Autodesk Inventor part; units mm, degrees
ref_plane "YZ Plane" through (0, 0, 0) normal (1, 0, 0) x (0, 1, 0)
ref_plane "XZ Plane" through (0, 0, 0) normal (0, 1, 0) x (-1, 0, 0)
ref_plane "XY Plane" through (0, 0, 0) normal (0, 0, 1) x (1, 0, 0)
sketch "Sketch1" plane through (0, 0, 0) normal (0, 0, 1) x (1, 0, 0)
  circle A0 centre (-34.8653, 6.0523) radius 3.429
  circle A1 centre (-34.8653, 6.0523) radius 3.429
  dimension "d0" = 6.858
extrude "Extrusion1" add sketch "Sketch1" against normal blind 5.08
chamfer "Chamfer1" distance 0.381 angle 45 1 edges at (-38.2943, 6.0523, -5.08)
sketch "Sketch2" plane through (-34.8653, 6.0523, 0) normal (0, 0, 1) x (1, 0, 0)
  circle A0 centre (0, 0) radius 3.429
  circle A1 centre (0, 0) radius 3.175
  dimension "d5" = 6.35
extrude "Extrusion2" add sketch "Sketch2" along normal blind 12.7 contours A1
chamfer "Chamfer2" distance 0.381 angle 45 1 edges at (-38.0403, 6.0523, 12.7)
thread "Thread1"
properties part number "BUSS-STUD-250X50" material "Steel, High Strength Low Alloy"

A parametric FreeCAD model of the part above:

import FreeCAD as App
import Part
import Sketcher
from FreeCAD import Vector
Q = App.Units.Quantity


def edges_at(feature, points):
    """Names of the edges that pass closest to the given points."""
    edges = feature.Shape.Edges
    near = lambda p: min(range(len(edges)), key=lambda i: edges[i].distToShape(Part.Vertex(*p))[0])
    return sorted({f"Edge{near(p) + 1}" for p in points})

doc = App.newDocument("Part")
body = doc.addObject("PartDesign::Body", "Body")

sketch1 = doc.addObject("Sketcher::SketchObject", "Sketch")
body.addObject(sketch1)
sketch1.AttachmentSupport = (doc.XY_Plane, [""])
sketch1.MapMode = "FlatFace"
sketch1.addGeometry(Part.Circle(Vector(-34.8653, 6.0523, 0), Vector(0, 0, 1), 3.429), False)
sketch1.addConstraint([
    Sketcher.Constraint("Diameter", 0, Q("0.27 in")),
    Sketcher.Constraint("DistanceX", 0, 3, -1, 1, 34.8653),
    Sketcher.Constraint("DistanceY", -1, 1, 0, 3, 6.0523),
])
pad1 = doc.addObject("PartDesign::Pad", "Pad")
body.addObject(pad1)
pad1.Profile = sketch1
pad1.Length = Q("0.2 in")
pad1.Reversed = True
doc.recompute()

chamfer = doc.addObject("PartDesign::Chamfer", "Chamfer")
body.addObject(chamfer)
chamfer.Base = (pad1, edges_at(pad1, [(-38.294, 6.052, -5.08)]))
chamfer.Size = Q("0.015 in")

sketch2 = doc.addObject("Sketcher::SketchObject", "Sketch001")
body.addObject(sketch2)
sketch2.AttachmentSupport = (doc.XY_Plane, [""])
sketch2.MapMode = "FlatFace"
sketch2.addGeometry(Part.Circle(Vector(-34.8653, 6.0523, 0), Vector(0, 0, 1), 3.175), False)
sketch2.addConstraint([
    Sketcher.Constraint("Diameter", 0, Q("0.25 in")),
    Sketcher.Constraint("DistanceX", 0, 3, -1, 1, 34.8653),
    Sketcher.Constraint("DistanceY", -1, 1, 0, 3, 6.0523),
])
pad2 = doc.addObject("PartDesign::Pad", "Pad001")
body.addObject(pad2)
pad2.Profile = sketch2
pad2.Length = Q("0.5 in")
doc.recompute()

chamfer2 = doc.addObject("PartDesign::Chamfer", "Chamfer001")
body.addObject(chamfer2)
chamfer2.Base = (pad2, edges_at(pad2, [(-38.04, 6.052, 12.7)]))
chamfer2.Size = Q("0.015 in")

doc.recompute()
